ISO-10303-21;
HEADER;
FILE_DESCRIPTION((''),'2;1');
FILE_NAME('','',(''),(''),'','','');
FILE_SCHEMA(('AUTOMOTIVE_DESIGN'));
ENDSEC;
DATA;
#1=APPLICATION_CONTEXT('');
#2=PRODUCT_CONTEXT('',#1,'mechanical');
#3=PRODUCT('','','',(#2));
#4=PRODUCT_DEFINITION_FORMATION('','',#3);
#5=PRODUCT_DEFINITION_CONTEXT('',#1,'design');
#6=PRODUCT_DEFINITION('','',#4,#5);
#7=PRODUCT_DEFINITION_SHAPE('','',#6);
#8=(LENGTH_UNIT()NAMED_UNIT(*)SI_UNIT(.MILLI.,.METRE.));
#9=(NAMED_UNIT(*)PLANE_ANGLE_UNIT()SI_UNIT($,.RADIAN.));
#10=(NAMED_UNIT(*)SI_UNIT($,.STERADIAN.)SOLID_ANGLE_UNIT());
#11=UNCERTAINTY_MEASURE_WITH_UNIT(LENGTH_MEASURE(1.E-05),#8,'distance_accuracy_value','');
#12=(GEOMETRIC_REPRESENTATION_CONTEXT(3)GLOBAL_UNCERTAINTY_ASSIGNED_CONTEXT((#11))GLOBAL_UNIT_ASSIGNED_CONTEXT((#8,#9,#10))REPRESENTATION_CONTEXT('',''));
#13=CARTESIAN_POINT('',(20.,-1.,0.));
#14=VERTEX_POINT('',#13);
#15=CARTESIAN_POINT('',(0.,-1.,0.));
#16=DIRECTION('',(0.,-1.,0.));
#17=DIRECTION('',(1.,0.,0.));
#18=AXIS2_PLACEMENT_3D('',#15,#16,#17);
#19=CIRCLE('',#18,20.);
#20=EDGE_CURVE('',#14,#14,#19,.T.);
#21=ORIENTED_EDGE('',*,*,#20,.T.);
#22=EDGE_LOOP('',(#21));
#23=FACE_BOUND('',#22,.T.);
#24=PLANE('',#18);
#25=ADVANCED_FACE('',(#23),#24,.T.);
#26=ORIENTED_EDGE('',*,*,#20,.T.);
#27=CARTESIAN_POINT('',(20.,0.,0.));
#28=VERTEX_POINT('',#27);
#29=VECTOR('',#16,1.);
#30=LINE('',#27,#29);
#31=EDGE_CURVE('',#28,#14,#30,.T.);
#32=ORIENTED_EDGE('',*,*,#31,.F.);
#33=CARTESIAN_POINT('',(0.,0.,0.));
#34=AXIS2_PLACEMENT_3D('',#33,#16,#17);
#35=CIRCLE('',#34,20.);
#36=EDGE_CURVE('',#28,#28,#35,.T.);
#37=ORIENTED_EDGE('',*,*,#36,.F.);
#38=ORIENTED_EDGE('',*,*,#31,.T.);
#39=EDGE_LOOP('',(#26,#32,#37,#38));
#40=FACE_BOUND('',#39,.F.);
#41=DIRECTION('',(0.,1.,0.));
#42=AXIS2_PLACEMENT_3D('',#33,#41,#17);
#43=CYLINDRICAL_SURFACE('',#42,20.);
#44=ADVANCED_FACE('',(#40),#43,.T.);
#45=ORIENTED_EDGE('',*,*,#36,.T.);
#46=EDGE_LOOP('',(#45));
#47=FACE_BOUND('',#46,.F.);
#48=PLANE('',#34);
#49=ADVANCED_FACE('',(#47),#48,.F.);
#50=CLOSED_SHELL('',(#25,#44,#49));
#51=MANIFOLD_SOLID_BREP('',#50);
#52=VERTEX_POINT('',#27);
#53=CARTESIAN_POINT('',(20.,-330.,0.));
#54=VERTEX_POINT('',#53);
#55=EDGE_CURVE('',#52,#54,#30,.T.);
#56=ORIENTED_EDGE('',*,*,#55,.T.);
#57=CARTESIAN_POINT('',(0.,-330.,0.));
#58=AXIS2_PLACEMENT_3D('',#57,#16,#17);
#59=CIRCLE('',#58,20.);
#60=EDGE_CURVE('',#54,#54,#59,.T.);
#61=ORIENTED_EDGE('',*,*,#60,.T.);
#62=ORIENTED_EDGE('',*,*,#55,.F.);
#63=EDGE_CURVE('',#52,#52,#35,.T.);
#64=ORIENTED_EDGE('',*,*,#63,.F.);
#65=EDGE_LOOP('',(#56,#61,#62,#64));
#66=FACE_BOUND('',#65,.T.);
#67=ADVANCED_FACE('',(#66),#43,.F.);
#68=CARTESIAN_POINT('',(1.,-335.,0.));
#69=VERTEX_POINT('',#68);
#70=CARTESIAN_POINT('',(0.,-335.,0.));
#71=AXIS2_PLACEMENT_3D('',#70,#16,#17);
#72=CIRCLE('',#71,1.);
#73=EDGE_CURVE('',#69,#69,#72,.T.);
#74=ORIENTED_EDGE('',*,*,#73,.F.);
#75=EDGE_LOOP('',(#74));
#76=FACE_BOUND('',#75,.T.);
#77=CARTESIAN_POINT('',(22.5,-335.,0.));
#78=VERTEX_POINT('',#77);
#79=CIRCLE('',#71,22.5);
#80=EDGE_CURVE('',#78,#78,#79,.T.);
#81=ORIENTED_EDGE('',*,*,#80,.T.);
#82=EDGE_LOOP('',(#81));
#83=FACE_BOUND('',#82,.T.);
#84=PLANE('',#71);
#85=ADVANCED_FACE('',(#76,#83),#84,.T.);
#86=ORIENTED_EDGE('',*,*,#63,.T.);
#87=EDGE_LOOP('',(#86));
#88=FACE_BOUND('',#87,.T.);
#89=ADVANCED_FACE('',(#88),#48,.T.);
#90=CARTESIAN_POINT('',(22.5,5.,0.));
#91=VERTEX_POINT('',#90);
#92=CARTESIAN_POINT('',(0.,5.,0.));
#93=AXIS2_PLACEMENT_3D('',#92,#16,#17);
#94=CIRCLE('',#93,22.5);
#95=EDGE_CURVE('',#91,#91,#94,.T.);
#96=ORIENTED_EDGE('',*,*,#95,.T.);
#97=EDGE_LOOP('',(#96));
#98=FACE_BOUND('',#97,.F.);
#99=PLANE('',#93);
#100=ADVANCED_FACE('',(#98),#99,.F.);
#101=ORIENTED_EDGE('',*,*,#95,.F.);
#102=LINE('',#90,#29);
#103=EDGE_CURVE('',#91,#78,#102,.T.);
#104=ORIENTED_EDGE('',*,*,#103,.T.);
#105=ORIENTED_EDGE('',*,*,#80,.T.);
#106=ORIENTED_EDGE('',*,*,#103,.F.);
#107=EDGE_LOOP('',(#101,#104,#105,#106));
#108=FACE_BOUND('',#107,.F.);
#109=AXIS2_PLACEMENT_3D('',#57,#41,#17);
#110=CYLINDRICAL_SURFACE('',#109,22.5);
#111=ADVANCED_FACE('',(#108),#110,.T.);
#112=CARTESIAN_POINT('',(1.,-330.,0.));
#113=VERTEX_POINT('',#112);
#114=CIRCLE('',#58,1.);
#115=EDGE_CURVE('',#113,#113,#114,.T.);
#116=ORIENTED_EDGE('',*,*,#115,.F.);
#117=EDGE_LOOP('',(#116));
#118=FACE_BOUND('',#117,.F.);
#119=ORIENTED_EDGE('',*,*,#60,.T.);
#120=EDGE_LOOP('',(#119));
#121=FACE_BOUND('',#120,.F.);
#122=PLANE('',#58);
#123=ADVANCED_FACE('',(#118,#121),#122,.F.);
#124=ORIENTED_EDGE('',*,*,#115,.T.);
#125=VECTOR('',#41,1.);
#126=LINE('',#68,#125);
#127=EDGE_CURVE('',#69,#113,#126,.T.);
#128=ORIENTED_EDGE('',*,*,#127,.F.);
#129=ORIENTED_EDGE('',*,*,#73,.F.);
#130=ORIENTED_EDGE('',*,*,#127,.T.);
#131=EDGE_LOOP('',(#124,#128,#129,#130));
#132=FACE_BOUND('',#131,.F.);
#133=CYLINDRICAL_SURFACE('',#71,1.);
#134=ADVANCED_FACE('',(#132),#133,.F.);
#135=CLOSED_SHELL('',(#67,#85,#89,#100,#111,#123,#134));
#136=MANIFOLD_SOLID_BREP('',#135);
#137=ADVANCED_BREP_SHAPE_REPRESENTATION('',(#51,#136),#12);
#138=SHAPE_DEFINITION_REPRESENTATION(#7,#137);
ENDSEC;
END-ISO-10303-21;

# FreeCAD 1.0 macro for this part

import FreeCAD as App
import Part
import Sketcher
from FreeCAD import Vector
Q = App.Units.Quantity

doc = App.newDocument("Part")
body = doc.addObject("PartDesign::Body", "Body")

sketch1 = body.newObject("Sketcher::SketchObject", "Sketch")
sketch1.AttachmentSupport = (doc.getObject("XZ_Plane"), [""])
sketch1.MapMode = "FlatFace"
sketch1.addGeometry([
    Part.Circle(Vector(0, 0, 0), Vector(0, 0, 1), 22),
    Part.Circle(Vector(0, 0, 0), Vector(0, 0, 1), 20),
], False)
sketch1.addConstraint([
    Sketcher.Constraint("Coincident", 0, 3, -1, 1),
    Sketcher.Constraint("Coincident", 1, 3, -1, 1),
    Sketcher.Constraint("Diameter", 0, Q("45 mm")),
    Sketcher.Constraint("Diameter", 1, Q("40 mm")),
])
pad1 = body.newObject("PartDesign::Pad", "Pad")
pad1.Profile = sketch1
pad1.Length = 330

sketch2 = body.newObject("Sketcher::SketchObject", "Sketch001")
sketch2.AttachmentSupport = (doc.getObject("XZ_Plane"), [""])
sketch2.MapMode = "FlatFace"
sketch2.addGeometry(Part.Circle(Vector(0, 0, 0), Vector(0, 0, 1), 22), False)
sketch2.addConstraint([
    Sketcher.Constraint("Coincident", 0, 3, -1, 1),
    Sketcher.Constraint("Diameter", 0, Q("45 mm")),
])
pad2 = body.newObject("PartDesign::Pad", "Pad001")
pad2.Profile = sketch2
pad2.Length = 5
pad2.Reversed = True

sketch3 = body.newObject("Sketcher::SketchObject", "Sketch002")
sketch3.AttachmentSupport = (doc.getObject("XZ_Plane"), [""])
sketch3.MapMode = "FlatFace"
sketch3.AttachmentOffset = App.Placement(Vector(0, 0, 330), App.Rotation())
sketch3.addGeometry(Part.Circle(Vector(0, 0, 0), Vector(0, 0, 1), 22), False)
sketch3.addConstraint([
    Sketcher.Constraint("Coincident", 0, 3, -1, 1),
    Sketcher.Constraint("Diameter", 0, Q("45 mm")),
])
pad3 = body.newObject("PartDesign::Pad", "Pad002")
pad3.Profile = sketch3
pad3.Length = 5

sketch4 = body.newObject("Sketcher::SketchObject", "Sketch003")
sketch4.AttachmentSupport = (doc.getObject("XZ_Plane"), [""])
sketch4.MapMode = "FlatFace"
sketch4.AttachmentOffset = App.Placement(Vector(0, 0, 335), App.Rotation())
sketch4.addGeometry(Part.Circle(Vector(0, 0, 0), Vector(0, 0, 1), 1), False)
sketch4.addConstraint([
    Sketcher.Constraint("Coincident", 0, 3, -1, 1),
    Sketcher.Constraint("Diameter", 0, Q("2 mm")),
])
pocket1 = body.newObject("PartDesign::Pocket", "Pocket")
pocket1.Profile = sketch4
pocket1.Length = 25
body2 = doc.addObject("PartDesign::Body", "Body001")

sketch5 = body2.newObject("Sketcher::SketchObject", "Sketch004")
sketch5.AttachmentSupport = (doc.getObject("XZ_Plane001"), [""])
sketch5.MapMode = "FlatFace"
sketch5.addGeometry(Part.Circle(Vector(0, 0, 0), Vector(0, 0, 1), 20), False)
sketch5.addConstraint([
    Sketcher.Constraint("Coincident", 0, 3, -1, 1),
    Sketcher.Constraint("Diameter", 0, Q("40 mm")),
])
pad4 = body2.newObject("PartDesign::Pad", "Pad003")
pad4.Profile = sketch5
pad4.Length = 1

doc.recompute()
